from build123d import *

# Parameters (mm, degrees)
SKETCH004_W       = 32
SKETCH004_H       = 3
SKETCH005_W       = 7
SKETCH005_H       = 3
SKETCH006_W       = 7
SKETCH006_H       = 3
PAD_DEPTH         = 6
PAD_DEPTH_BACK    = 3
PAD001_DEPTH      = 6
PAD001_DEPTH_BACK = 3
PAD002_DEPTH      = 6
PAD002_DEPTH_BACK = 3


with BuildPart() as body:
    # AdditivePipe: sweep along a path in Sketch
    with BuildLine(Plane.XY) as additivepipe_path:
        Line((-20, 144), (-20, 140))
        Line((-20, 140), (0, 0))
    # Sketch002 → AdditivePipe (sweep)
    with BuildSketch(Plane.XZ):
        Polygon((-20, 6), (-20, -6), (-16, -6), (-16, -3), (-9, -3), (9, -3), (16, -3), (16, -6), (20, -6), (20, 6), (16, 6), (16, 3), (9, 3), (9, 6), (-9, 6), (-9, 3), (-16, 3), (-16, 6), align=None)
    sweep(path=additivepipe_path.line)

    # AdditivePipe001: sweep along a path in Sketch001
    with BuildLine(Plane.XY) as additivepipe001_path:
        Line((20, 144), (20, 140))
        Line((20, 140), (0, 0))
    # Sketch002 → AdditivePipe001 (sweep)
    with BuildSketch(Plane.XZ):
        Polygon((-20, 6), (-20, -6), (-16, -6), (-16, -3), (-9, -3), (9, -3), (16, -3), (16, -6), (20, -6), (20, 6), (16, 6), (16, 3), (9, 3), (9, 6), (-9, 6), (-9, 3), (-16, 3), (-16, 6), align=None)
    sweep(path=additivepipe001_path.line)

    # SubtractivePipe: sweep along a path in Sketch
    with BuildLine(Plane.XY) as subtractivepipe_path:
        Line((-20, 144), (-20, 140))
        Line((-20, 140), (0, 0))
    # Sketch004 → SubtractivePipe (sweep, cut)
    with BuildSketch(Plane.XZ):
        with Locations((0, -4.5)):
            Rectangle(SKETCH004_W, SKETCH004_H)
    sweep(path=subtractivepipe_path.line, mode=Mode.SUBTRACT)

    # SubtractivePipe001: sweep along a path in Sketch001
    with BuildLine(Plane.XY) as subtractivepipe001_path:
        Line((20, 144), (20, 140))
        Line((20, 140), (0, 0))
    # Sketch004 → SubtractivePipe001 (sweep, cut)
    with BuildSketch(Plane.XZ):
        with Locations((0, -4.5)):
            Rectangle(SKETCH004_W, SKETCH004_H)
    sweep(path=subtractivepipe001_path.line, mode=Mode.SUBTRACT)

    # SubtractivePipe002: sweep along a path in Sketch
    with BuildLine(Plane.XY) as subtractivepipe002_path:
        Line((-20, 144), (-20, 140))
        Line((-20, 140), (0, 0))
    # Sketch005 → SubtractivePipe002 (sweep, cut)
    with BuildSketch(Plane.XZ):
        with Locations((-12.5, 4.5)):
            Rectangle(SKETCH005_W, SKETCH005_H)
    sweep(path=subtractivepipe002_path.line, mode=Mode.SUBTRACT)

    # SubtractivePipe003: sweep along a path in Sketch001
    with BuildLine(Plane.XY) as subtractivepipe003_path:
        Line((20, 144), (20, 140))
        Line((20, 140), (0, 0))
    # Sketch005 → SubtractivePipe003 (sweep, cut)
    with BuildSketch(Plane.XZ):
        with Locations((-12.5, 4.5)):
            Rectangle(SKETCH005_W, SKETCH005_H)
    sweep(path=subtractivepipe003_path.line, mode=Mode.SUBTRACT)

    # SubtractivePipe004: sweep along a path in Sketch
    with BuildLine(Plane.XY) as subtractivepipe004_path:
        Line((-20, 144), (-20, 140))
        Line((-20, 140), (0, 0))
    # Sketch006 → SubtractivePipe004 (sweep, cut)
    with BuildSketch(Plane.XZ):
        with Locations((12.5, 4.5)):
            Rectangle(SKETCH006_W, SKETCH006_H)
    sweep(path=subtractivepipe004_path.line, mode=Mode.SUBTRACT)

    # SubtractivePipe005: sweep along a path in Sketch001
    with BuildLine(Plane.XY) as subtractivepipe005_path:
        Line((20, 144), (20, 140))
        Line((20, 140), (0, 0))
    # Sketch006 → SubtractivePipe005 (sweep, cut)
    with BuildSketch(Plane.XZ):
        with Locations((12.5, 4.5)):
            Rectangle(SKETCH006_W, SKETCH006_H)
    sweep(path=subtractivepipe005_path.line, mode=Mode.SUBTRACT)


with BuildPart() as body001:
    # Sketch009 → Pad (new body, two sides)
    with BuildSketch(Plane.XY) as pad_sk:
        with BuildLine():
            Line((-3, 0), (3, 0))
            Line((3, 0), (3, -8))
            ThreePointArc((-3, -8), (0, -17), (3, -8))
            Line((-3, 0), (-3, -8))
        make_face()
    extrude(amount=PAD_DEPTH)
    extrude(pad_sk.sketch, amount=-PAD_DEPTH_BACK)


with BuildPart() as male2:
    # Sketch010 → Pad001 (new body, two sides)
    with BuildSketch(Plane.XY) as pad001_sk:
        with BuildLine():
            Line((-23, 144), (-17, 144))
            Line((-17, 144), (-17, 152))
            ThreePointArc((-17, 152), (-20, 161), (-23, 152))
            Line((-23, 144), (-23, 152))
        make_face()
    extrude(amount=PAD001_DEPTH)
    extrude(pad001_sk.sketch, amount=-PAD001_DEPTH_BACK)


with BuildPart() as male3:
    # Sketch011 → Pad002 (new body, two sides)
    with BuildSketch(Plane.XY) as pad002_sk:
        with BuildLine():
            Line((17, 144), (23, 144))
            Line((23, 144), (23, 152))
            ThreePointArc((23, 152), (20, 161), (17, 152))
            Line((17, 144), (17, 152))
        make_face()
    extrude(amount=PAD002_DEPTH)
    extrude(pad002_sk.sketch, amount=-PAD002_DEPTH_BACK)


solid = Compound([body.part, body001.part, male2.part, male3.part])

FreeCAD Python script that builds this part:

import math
import FreeCAD as App
import Part
import Sketcher

doc = App.newDocument("Part")
body = doc.addObject("PartDesign::Body", "Body")

# Sketch on XZ plane
sketch1 = doc.addObject("Sketcher::SketchObject", "Sketch")
body.addObject(sketch1)
sketch1.AttachmentSupport = (doc.XZ_Plane, [""])
sketch1.MapMode = "FlatFace"
sketch1.addGeometry(Part.LineSegment(App.Vector(-20, 6, 0), App.Vector(-20, -6, 0)), False)
sketch1.addGeometry(Part.LineSegment(App.Vector(-20, -6, 0), App.Vector(-16, -6, 0)), False)
sketch1.addGeometry(Part.LineSegment(App.Vector(-16, -6, 0), App.Vector(-16, -3, 0)), False)
sketch1.addGeometry(Part.LineSegment(App.Vector(-16, -3, 0), App.Vector(16, -3, 0)), False)
sketch1.addGeometry(Part.LineSegment(App.Vector(16, -3, 0), App.Vector(16, -6, 0)), False)
sketch1.addGeometry(Part.LineSegment(App.Vector(16, -6, 0), App.Vector(20, -6, 0)), False)
sketch1.addGeometry(Part.LineSegment(App.Vector(20, -6, 0), App.Vector(20, 6, 0)), False)
sketch1.addGeometry(Part.LineSegment(App.Vector(20, 6, 0), App.Vector(16, 6, 0)), False)
sketch1.addGeometry(Part.LineSegment(App.Vector(16, 6, 0), App.Vector(16, 3, 0)), False)
sketch1.addGeometry(Part.LineSegment(App.Vector(16, 3, 0), App.Vector(9, 3, 0)), False)
sketch1.addGeometry(Part.LineSegment(App.Vector(9, 3, 0), App.Vector(9, 6, 0)), False)
sketch1.addGeometry(Part.LineSegment(App.Vector(9, 6, 0), App.Vector(-9, 6, 0)), False)
sketch1.addGeometry(Part.LineSegment(App.Vector(-9, 6, 0), App.Vector(-9, 3, 0)), False)
sketch1.addGeometry(Part.LineSegment(App.Vector(-9, 3, 0), App.Vector(-16, 3, 0)), False)
sketch1.addGeometry(Part.LineSegment(App.Vector(-16, 3, 0), App.Vector(-16, 6, 0)), False)
sketch1.addGeometry(Part.LineSegment(App.Vector(-16, 6, 0), App.Vector(-20, 6, 0)), False)
sketch1.addConstraint(Sketcher.Constraint("Coincident", 0, 2, 1, 1))
sketch1.addConstraint(Sketcher.Constraint("Coincident", 1, 2, 2, 1))
sketch1.addConstraint(Sketcher.Constraint("Coincident", 2, 2, 3, 1))
sketch1.addConstraint(Sketcher.Constraint("Coincident", 3, 2, 4, 1))
sketch1.addConstraint(Sketcher.Constraint("Coincident", 4, 2, 5, 1))
sketch1.addConstraint(Sketcher.Constraint("Coincident", 5, 2, 6, 1))
sketch1.addConstraint(Sketcher.Constraint("Coincident", 6, 2, 7, 1))
sketch1.addConstraint(Sketcher.Constraint("Coincident", 7, 2, 8, 1))
sketch1.addConstraint(Sketcher.Constraint("Coincident", 8, 2, 9, 1))
sketch1.addConstraint(Sketcher.Constraint("Coincident", 9, 2, 10, 1))
sketch1.addConstraint(Sketcher.Constraint("Coincident", 10, 2, 11, 1))
sketch1.addConstraint(Sketcher.Constraint("Coincident", 11, 2, 12, 1))
sketch1.addConstraint(Sketcher.Constraint("Coincident", 12, 2, 13, 1))
sketch1.addConstraint(Sketcher.Constraint("Coincident", 13, 2, 14, 1))
sketch1.addConstraint(Sketcher.Constraint("Coincident", 14, 2, 15, 1))
sketch1.addConstraint(Sketcher.Constraint("Coincident", 15, 2, 0, 1))
sketch1.addConstraint(Sketcher.Constraint("Vertical", 0))
sketch1.addConstraint(Sketcher.Constraint("Horizontal", 1))
sketch1.addConstraint(Sketcher.Constraint("Vertical", 2))
sketch1.addConstraint(Sketcher.Constraint("Horizontal", 3))
sketch1.addConstraint(Sketcher.Constraint("Vertical", 4))
sketch1.addConstraint(Sketcher.Constraint("Horizontal", 5))
sketch1.addConstraint(Sketcher.Constraint("Vertical", 6))
sketch1.addConstraint(Sketcher.Constraint("Horizontal", 7))
sketch1.addConstraint(Sketcher.Constraint("Vertical", 8))
sketch1.addConstraint(Sketcher.Constraint("Horizontal", 9))
sketch1.addConstraint(Sketcher.Constraint("Vertical", 10))
sketch1.addConstraint(Sketcher.Constraint("Horizontal", 11))
sketch1.addConstraint(Sketcher.Constraint("Vertical", 12))
sketch1.addConstraint(Sketcher.Constraint("Horizontal", 13))
sketch1.addConstraint(Sketcher.Constraint("Vertical", 14))
sketch1.addConstraint(Sketcher.Constraint("Horizontal", 15))
sketch1.addConstraint(Sketcher.Constraint("Symmetric", 0, 2, 6, 2, -1, 1))
sketch1.addConstraint(Sketcher.Constraint("Symmetric", 2, 2, 8, 2, -1, 1))
sketch1.addConstraint(Sketcher.Constraint("Symmetric", 3, 2, 13, 2, -1, 1))
sketch1.addConstraint(Sketcher.Constraint("Symmetric", 1, 2, 4, 2, -2))
sketch1.addConstraint(Sketcher.Constraint("Horizontal", 7, 2, 10, 2))
sketch1.addConstraint(Sketcher.Constraint("Horizontal", 11, 2, 14, 2))
sketch1.addConstraint(Sketcher.Constraint("Equal", 9, 13))
sketch1.addConstraint(Sketcher.Constraint("DistanceX", 1, 1, 1, 2, 4.0))
sketch1.addConstraint(Sketcher.Constraint("DistanceX", 3, 1, 3, 2, 32.0))
sketch1.addConstraint(Sketcher.Constraint("DistanceX", 9, 2, 9, 1, 7.0))
sketch1.addConstraint(Sketcher.Constraint("DistanceY", 0, 2, 0, 1, 12.0))
sketch1.addConstraint(Sketcher.Constraint("DistanceY", 2, 1, 2, 2, 3.0))

# Sketch on XY plane
sketch2 = doc.addObject("Sketcher::SketchObject", "Sketch001")
body.addObject(sketch2)
sketch2.AttachmentSupport = (doc.XY_Plane, [""])
sketch2.MapMode = "FlatFace"
sketch2.addGeometry(Part.LineSegment(App.Vector(-20, 144, 0), App.Vector(-20, 140, 0)), False)
sketch2.addGeometry(Part.LineSegment(App.Vector(-20, 140, 0), App.Vector(0, 0, 0)), False)
sketch2.addConstraint(Sketcher.Constraint("Coincident", 0, 2, 1, 1))
sketch2.addConstraint(Sketcher.Constraint("Vertical", 0))
sketch2.addConstraint(Sketcher.Constraint("Coincident", 1, 2, -1, 1))
sketch2.addConstraint(Sketcher.Constraint("DistanceY", 0, 2, 0, 1, 4.0))
sketch2.addConstraint(Sketcher.Constraint("DistanceX", 0, 1, -1, 1, 20.0))
sketch2.addConstraint(Sketcher.Constraint("DistanceY", -1, 1, 0, 1, 144.0))
doc.recompute()

additivepipe = doc.addObject("PartDesign::AdditivePipe", "AdditivePipe")
body.addObject(additivepipe)
additivepipe.Profile = sketch1
additivepipe.Spine = (sketch2, ["Edge1", "Edge2"])

# Sketch on XZ plane
sketch3 = doc.addObject("Sketcher::SketchObject", "Sketch002")
body.addObject(sketch3)
sketch3.AttachmentSupport = (doc.XZ_Plane, [""])
sketch3.MapMode = "FlatFace"
sketch3.addGeometry(Part.LineSegment(App.Vector(-20, 6, 0), App.Vector(-20, -6, 0)), False)
sketch3.addGeometry(Part.LineSegment(App.Vector(-20, -6, 0), App.Vector(-16, -6, 0)), False)
sketch3.addGeometry(Part.LineSegment(App.Vector(-16, -6, 0), App.Vector(-16, -3, 0)), False)
sketch3.addGeometry(Part.LineSegment(App.Vector(-16, -3, 0), App.Vector(16, -3, 0)), False)
sketch3.addGeometry(Part.LineSegment(App.Vector(16, -3, 0), App.Vector(16, -6, 0)), False)
sketch3.addGeometry(Part.LineSegment(App.Vector(16, -6, 0), App.Vector(20, -6, 0)), False)
sketch3.addGeometry(Part.LineSegment(App.Vector(20, -6, 0), App.Vector(20, 6, 0)), False)
sketch3.addGeometry(Part.LineSegment(App.Vector(20, 6, 0), App.Vector(16, 6, 0)), False)
sketch3.addGeometry(Part.LineSegment(App.Vector(16, 6, 0), App.Vector(16, 3, 0)), False)
sketch3.addGeometry(Part.LineSegment(App.Vector(16, 3, 0), App.Vector(9, 3, 0)), False)
sketch3.addGeometry(Part.LineSegment(App.Vector(9, 3, 0), App.Vector(9, 6, 0)), False)
sketch3.addGeometry(Part.LineSegment(App.Vector(9, 6, 0), App.Vector(-9, 6, 0)), False)
sketch3.addGeometry(Part.LineSegment(App.Vector(-9, 6, 0), App.Vector(-9, 3, 0)), False)
sketch3.addGeometry(Part.LineSegment(App.Vector(-9, 3, 0), App.Vector(-16, 3, 0)), False)
sketch3.addGeometry(Part.LineSegment(App.Vector(-16, 3, 0), App.Vector(-16, 6, 0)), False)
sketch3.addGeometry(Part.LineSegment(App.Vector(-16, 6, 0), App.Vector(-20, 6, 0)), False)
sketch3.addConstraint(Sketcher.Constraint("Coincident", 0, 2, 1, 1))
sketch3.addConstraint(Sketcher.Constraint("Coincident", 1, 2, 2, 1))
sketch3.addConstraint(Sketcher.Constraint("Coincident", 2, 2, 3, 1))
sketch3.addConstraint(Sketcher.Constraint("Coincident", 3, 2, 4, 1))
sketch3.addConstraint(Sketcher.Constraint("Coincident", 4, 2, 5, 1))
sketch3.addConstraint(Sketcher.Constraint("Coincident", 5, 2, 6, 1))
sketch3.addConstraint(Sketcher.Constraint("Coincident", 6, 2, 7, 1))
sketch3.addConstraint(Sketcher.Constraint("Coincident", 7, 2, 8, 1))
sketch3.addConstraint(Sketcher.Constraint("Coincident", 8, 2, 9, 1))
sketch3.addConstraint(Sketcher.Constraint("Coincident", 9, 2, 10, 1))
sketch3.addConstraint(Sketcher.Constraint("Coincident", 10, 2, 11, 1))
sketch3.addConstraint(Sketcher.Constraint("Coincident", 11, 2, 12, 1))
sketch3.addConstraint(Sketcher.Constraint("Coincident", 12, 2, 13, 1))
sketch3.addConstraint(Sketcher.Constraint("Coincident", 13, 2, 14, 1))
sketch3.addConstraint(Sketcher.Constraint("Coincident", 14, 2, 15, 1))
sketch3.addConstraint(Sketcher.Constraint("Coincident", 15, 2, 0, 1))
sketch3.addConstraint(Sketcher.Constraint("Vertical", 0))
sketch3.addConstraint(Sketcher.Constraint("Horizontal", 1))
sketch3.addConstraint(Sketcher.Constraint("Vertical", 2))
sketch3.addConstraint(Sketcher.Constraint("Horizontal", 3))
sketch3.addConstraint(Sketcher.Constraint("Vertical", 4))
sketch3.addConstraint(Sketcher.Constraint("Horizontal", 5))
sketch3.addConstraint(Sketcher.Constraint("Vertical", 6))
sketch3.addConstraint(Sketcher.Constraint("Horizontal", 7))
sketch3.addConstraint(Sketcher.Constraint("Vertical", 8))
sketch3.addConstraint(Sketcher.Constraint("Horizontal", 9))
sketch3.addConstraint(Sketcher.Constraint("Vertical", 10))
sketch3.addConstraint(Sketcher.Constraint("Horizontal", 11))
sketch3.addConstraint(Sketcher.Constraint("Vertical", 12))
sketch3.addConstraint(Sketcher.Constraint("Horizontal", 13))
sketch3.addConstraint(Sketcher.Constraint("Vertical", 14))
sketch3.addConstraint(Sketcher.Constraint("Horizontal", 15))
sketch3.addConstraint(Sketcher.Constraint("Symmetric", 0, 2, 6, 2, -1, 1))
sketch3.addConstraint(Sketcher.Constraint("Symmetric", 2, 2, 8, 2, -1, 1))
sketch3.addConstraint(Sketcher.Constraint("Symmetric", 3, 2, 13, 2, -1, 1))
sketch3.addConstraint(Sketcher.Constraint("Symmetric", 1, 2, 4, 2, -2))
sketch3.addConstraint(Sketcher.Constraint("Horizontal", 7, 2, 10, 2))
sketch3.addConstraint(Sketcher.Constraint("Horizontal", 11, 2, 14, 2))
sketch3.addConstraint(Sketcher.Constraint("Equal", 9, 13))
sketch3.addConstraint(Sketcher.Constraint("DistanceX", 1, 1, 1, 2, 4.0))
sketch3.addConstraint(Sketcher.Constraint("DistanceX", 3, 1, 3, 2, 32.0))
sketch3.addConstraint(Sketcher.Constraint("DistanceX", 9, 2, 9, 1, 7.0))
sketch3.addConstraint(Sketcher.Constraint("DistanceY", 0, 2, 0, 1, 12.0))
sketch3.addConstraint(Sketcher.Constraint("DistanceY", 2, 1, 2, 2, 3.0))

# Sketch on XY plane
sketch4 = doc.addObject("Sketcher::SketchObject", "Sketch003")
body.addObject(sketch4)
sketch4.AttachmentSupport = (doc.XY_Plane, [""])
sketch4.MapMode = "FlatFace"
sketch4.addGeometry(Part.LineSegment(App.Vector(20, 144, 0), App.Vector(20, 140, 0)), False)
sketch4.addGeometry(Part.LineSegment(App.Vector(20, 140, 0), App.Vector(0, 0, 0)), False)
sketch4.addConstraint(Sketcher.Constraint("Coincident", 0, 2, 1, 1))
sketch4.addConstraint(Sketcher.Constraint("Vertical", 0))
sketch4.addConstraint(Sketcher.Constraint("Coincident", 1, 2, -1, 1))
sketch4.addConstraint(Sketcher.Constraint("DistanceY", 0, 2, 0, 1, 4.0))
sketch4.addConstraint(Sketcher.Constraint("DistanceX", -1, 1, 0, 1, 20.0))
sketch4.addConstraint(Sketcher.Constraint("DistanceY", -1, 1, 0, 1, 144.0))
doc.recompute()

additivepipe2 = doc.addObject("PartDesign::AdditivePipe", "AdditivePipe001")
body.addObject(additivepipe2)
additivepipe2.Profile = sketch3
additivepipe2.Spine = (sketch4, ["Edge1", "Edge2"])

# Sketch on XZ plane
sketch5 = doc.addObject("Sketcher::SketchObject", "Sketch004")
body.addObject(sketch5)
sketch5.AttachmentSupport = (doc.XZ_Plane, [""])
sketch5.MapMode = "FlatFace"
sketch5.addGeometry(Part.LineSegment(App.Vector(-16, -3, 0), App.Vector(-16, -6, 0)), False)
sketch5.addGeometry(Part.LineSegment(App.Vector(-16, -6, 0), App.Vector(16, -6, 0)), False)
sketch5.addGeometry(Part.LineSegment(App.Vector(16, -6, 0), App.Vector(16, -3, 0)), False)
sketch5.addGeometry(Part.LineSegment(App.Vector(16, -3, 0), App.Vector(-16, -3, 0)), False)
sketch5.addConstraint(Sketcher.Constraint("Coincident", 0, 2, 1, 1))
sketch5.addConstraint(Sketcher.Constraint("Coincident", 1, 2, 2, 1))
sketch5.addConstraint(Sketcher.Constraint("Coincident", 2, 2, 3, 1))
sketch5.addConstraint(Sketcher.Constraint("Coincident", 3, 2, 0, 1))
sketch5.addConstraint(Sketcher.Constraint("Vertical", 0))
sketch5.addConstraint(Sketcher.Constraint("Horizontal", 1))
sketch5.addConstraint(Sketcher.Constraint("Vertical", 2))
sketch5.addConstraint(Sketcher.Constraint("Horizontal", 3))
sketch5.addConstraint(Sketcher.Constraint("DistanceX", 1, 1, 1, 2, 32.0))
sketch5.addConstraint(Sketcher.Constraint("DistanceY", 0, 2, 0, 1, 3.0))
sketch5.addConstraint(Sketcher.Constraint("DistanceX", 0, 2, -1, 1, 16.0))
sketch5.addConstraint(Sketcher.Constraint("DistanceY", 0, 2, -1, 1, 6.0))

# Sketch on XY plane
sketch6 = doc.addObject("Sketcher::SketchObject", "Sketch005")
body.addObject(sketch6)
sketch6.AttachmentSupport = (doc.XY_Plane, [""])
sketch6.MapMode = "FlatFace"
sketch6.addGeometry(Part.LineSegment(App.Vector(-20, 144, 0), App.Vector(-20, 140, 0)), False)
sketch6.addGeometry(Part.LineSegment(App.Vector(-20, 140, 0), App.Vector(0, 0, 0)), False)
sketch6.addConstraint(Sketcher.Constraint("Coincident", 0, 2, 1, 1))
sketch6.addConstraint(Sketcher.Constraint("Vertical", 0))
sketch6.addConstraint(Sketcher.Constraint("Coincident", 1, 2, -1, 1))
sketch6.addConstraint(Sketcher.Constraint("DistanceY", 0, 2, 0, 1, 4.0))
sketch6.addConstraint(Sketcher.Constraint("DistanceX", 0, 1, -1, 1, 20.0))
sketch6.addConstraint(Sketcher.Constraint("DistanceY", -1, 1, 0, 1, 144.0))
doc.recompute()

subtractivepipe = doc.addObject("PartDesign::SubtractivePipe", "SubtractivePipe")
body.addObject(subtractivepipe)
subtractivepipe.Profile = sketch5
subtractivepipe.Spine = (sketch6, ["Edge1", "Edge2"])

# Sketch on XZ plane
sketch7 = doc.addObject("Sketcher::SketchObject", "Sketch006")
body.addObject(sketch7)
sketch7.AttachmentSupport = (doc.XZ_Plane, [""])
sketch7.MapMode = "FlatFace"
sketch7.addGeometry(Part.LineSegment(App.Vector(-16, -3, 0), App.Vector(-16, -6, 0)), False)
sketch7.addGeometry(Part.LineSegment(App.Vector(-16, -6, 0), App.Vector(16, -6, 0)), False)
sketch7.addGeometry(Part.LineSegment(App.Vector(16, -6, 0), App.Vector(16, -3, 0)), False)
sketch7.addGeometry(Part.LineSegment(App.Vector(16, -3, 0), App.Vector(-16, -3, 0)), False)
sketch7.addConstraint(Sketcher.Constraint("Coincident", 0, 2, 1, 1))
sketch7.addConstraint(Sketcher.Constraint("Coincident", 1, 2, 2, 1))
sketch7.addConstraint(Sketcher.Constraint("Coincident", 2, 2, 3, 1))
sketch7.addConstraint(Sketcher.Constraint("Coincident", 3, 2, 0, 1))
sketch7.addConstraint(Sketcher.Constraint("Vertical", 0))
sketch7.addConstraint(Sketcher.Constraint("Horizontal", 1))
sketch7.addConstraint(Sketcher.Constraint("Vertical", 2))
sketch7.addConstraint(Sketcher.Constraint("Horizontal", 3))
sketch7.addConstraint(Sketcher.Constraint("DistanceX", 1, 1, 1, 2, 32.0))
sketch7.addConstraint(Sketcher.Constraint("DistanceY", 0, 2, 0, 1, 3.0))
sketch7.addConstraint(Sketcher.Constraint("DistanceX", 0, 2, -1, 1, 16.0))
sketch7.addConstraint(Sketcher.Constraint("DistanceY", 0, 2, -1, 1, 6.0))

# Sketch on XY plane
sketch8 = doc.addObject("Sketcher::SketchObject", "Sketch007")
body.addObject(sketch8)
sketch8.AttachmentSupport = (doc.XY_Plane, [""])
sketch8.MapMode = "FlatFace"
sketch8.addGeometry(Part.LineSegment(App.Vector(20, 144, 0), App.Vector(20, 140, 0)), False)
sketch8.addGeometry(Part.LineSegment(App.Vector(20, 140, 0), App.Vector(0, 0, 0)), False)
sketch8.addConstraint(Sketcher.Constraint("Coincident", 0, 2, 1, 1))
sketch8.addConstraint(Sketcher.Constraint("Vertical", 0))
sketch8.addConstraint(Sketcher.Constraint("Coincident", 1, 2, -1, 1))
sketch8.addConstraint(Sketcher.Constraint("DistanceY", 0, 2, 0, 1, 4.0))
sketch8.addConstraint(Sketcher.Constraint("DistanceX", -1, 1, 0, 1, 20.0))
sketch8.addConstraint(Sketcher.Constraint("DistanceY", -1, 1, 0, 1, 144.0))
doc.recompute()

subtractivepipe2 = doc.addObject("PartDesign::SubtractivePipe", "SubtractivePipe001")
body.addObject(subtractivepipe2)
subtractivepipe2.Profile = sketch7
subtractivepipe2.Spine = (sketch8, ["Edge1", "Edge2"])

# Sketch on XZ plane
sketch9 = doc.addObject("Sketcher::SketchObject", "Sketch008")
body.addObject(sketch9)
sketch9.AttachmentSupport = (doc.XZ_Plane, [""])
sketch9.MapMode = "FlatFace"
sketch9.addGeometry(Part.LineSegment(App.Vector(-16, 6, 0), App.Vector(-16, 3, 0)), False)
sketch9.addGeometry(Part.LineSegment(App.Vector(-16, 3, 0), App.Vector(-9, 3, 0)), False)
sketch9.addGeometry(Part.LineSegment(App.Vector(-9, 3, 0), App.Vector(-9, 6, 0)), False)
sketch9.addGeometry(Part.LineSegment(App.Vector(-9, 6, 0), App.Vector(-16, 6, 0)), False)
sketch9.addConstraint(Sketcher.Constraint("Coincident", 0, 2, 1, 1))
sketch9.addConstraint(Sketcher.Constraint("Coincident", 1, 2, 2, 1))
sketch9.addConstraint(Sketcher.Constraint("Coincident", 2, 2, 3, 1))
sketch9.addConstraint(Sketcher.Constraint("Coincident", 3, 2, 0, 1))
sketch9.addConstraint(Sketcher.Constraint("Vertical", 0))
sketch9.addConstraint(Sketcher.Constraint("Horizontal", 1))
sketch9.addConstraint(Sketcher.Constraint("Vertical", 2))
sketch9.addConstraint(Sketcher.Constraint("Horizontal", 3))
sketch9.addConstraint(Sketcher.Constraint("DistanceX", 1, 1, 1, 2, 7.0))
sketch9.addConstraint(Sketcher.Constraint("DistanceY", 0, 2, 0, 1, 3.0))
sketch9.addConstraint(Sketcher.Constraint("DistanceX", 0, 2, -1, 1, 16.0))
sketch9.addConstraint(Sketcher.Constraint("DistanceY", -1, 1, 0, 2, 3.0))

# Sketch on XY plane
sketch10 = doc.addObject("Sketcher::SketchObject", "Sketch009")
body.addObject(sketch10)
sketch10.AttachmentSupport = (doc.XY_Plane, [""])
sketch10.MapMode = "FlatFace"
sketch10.addGeometry(Part.LineSegment(App.Vector(-20, 144, 0), App.Vector(-20, 140, 0)), False)
sketch10.addGeometry(Part.LineSegment(App.Vector(-20, 140, 0), App.Vector(0, 0, 0)), False)
sketch10.addConstraint(Sketcher.Constraint("Coincident", 0, 2, 1, 1))
sketch10.addConstraint(Sketcher.Constraint("Vertical", 0))
sketch10.addConstraint(Sketcher.Constraint("Coincident", 1, 2, -1, 1))
sketch10.addConstraint(Sketcher.Constraint("DistanceY", 0, 2, 0, 1, 4.0))
sketch10.addConstraint(Sketcher.Constraint("DistanceX", 0, 1, -1, 1, 20.0))
sketch10.addConstraint(Sketcher.Constraint("DistanceY", -1, 1, 0, 1, 144.0))
doc.recompute()

subtractivepipe3 = doc.addObject("PartDesign::SubtractivePipe", "SubtractivePipe002")
body.addObject(subtractivepipe3)
subtractivepipe3.Profile = sketch9
subtractivepipe3.Spine = (sketch10, ["Edge1", "Edge2"])

# Sketch on XZ plane
sketch11 = doc.addObject("Sketcher::SketchObject", "Sketch010")
body.addObject(sketch11)
sketch11.AttachmentSupport = (doc.XZ_Plane, [""])
sketch11.MapMode = "FlatFace"
sketch11.addGeometry(Part.LineSegment(App.Vector(-16, 6, 0), App.Vector(-16, 3, 0)), False)
sketch11.addGeometry(Part.LineSegment(App.Vector(-16, 3, 0), App.Vector(-9, 3, 0)), False)
sketch11.addGeometry(Part.LineSegment(App.Vector(-9, 3, 0), App.Vector(-9, 6, 0)), False)
sketch11.addGeometry(Part.LineSegment(App.Vector(-9, 6, 0), App.Vector(-16, 6, 0)), False)
sketch11.addConstraint(Sketcher.Constraint("Coincident", 0, 2, 1, 1))
sketch11.addConstraint(Sketcher.Constraint("Coincident", 1, 2, 2, 1))
sketch11.addConstraint(Sketcher.Constraint("Coincident", 2, 2, 3, 1))
sketch11.addConstraint(Sketcher.Constraint("Coincident", 3, 2, 0, 1))
sketch11.addConstraint(Sketcher.Constraint("Vertical", 0))
sketch11.addConstraint(Sketcher.Constraint("Horizontal", 1))
sketch11.addConstraint(Sketcher.Constraint("Vertical", 2))
sketch11.addConstraint(Sketcher.Constraint("Horizontal", 3))
sketch11.addConstraint(Sketcher.Constraint("DistanceX", 1, 1, 1, 2, 7.0))
sketch11.addConstraint(Sketcher.Constraint("DistanceY", 0, 2, 0, 1, 3.0))
sketch11.addConstraint(Sketcher.Constraint("DistanceX", 0, 2, -1, 1, 16.0))
sketch11.addConstraint(Sketcher.Constraint("DistanceY", -1, 1, 0, 2, 3.0))

# Sketch on XY plane
sketch12 = doc.addObject("Sketcher::SketchObject", "Sketch011")
body.addObject(sketch12)
sketch12.AttachmentSupport = (doc.XY_Plane, [""])
sketch12.MapMode = "FlatFace"
sketch12.addGeometry(Part.LineSegment(App.Vector(20, 144, 0), App.Vector(20, 140, 0)), False)
sketch12.addGeometry(Part.LineSegment(App.Vector(20, 140, 0), App.Vector(0, 0, 0)), False)
sketch12.addConstraint(Sketcher.Constraint("Coincident", 0, 2, 1, 1))
sketch12.addConstraint(Sketcher.Constraint("Vertical", 0))
sketch12.addConstraint(Sketcher.Constraint("Coincident", 1, 2, -1, 1))
sketch12.addConstraint(Sketcher.Constraint("DistanceY", 0, 2, 0, 1, 4.0))
sketch12.addConstraint(Sketcher.Constraint("DistanceX", -1, 1, 0, 1, 20.0))
sketch12.addConstraint(Sketcher.Constraint("DistanceY", -1, 1, 0, 1, 144.0))
doc.recompute()

subtractivepipe4 = doc.addObject("PartDesign::SubtractivePipe", "SubtractivePipe003")
body.addObject(subtractivepipe4)
subtractivepipe4.Profile = sketch11
subtractivepipe4.Spine = (sketch12, ["Edge1", "Edge2"])

# Sketch on XZ plane
sketch13 = doc.addObject("Sketcher::SketchObject", "Sketch012")
body.addObject(sketch13)
sketch13.AttachmentSupport = (doc.XZ_Plane, [""])
sketch13.MapMode = "FlatFace"
sketch13.addGeometry(Part.LineSegment(App.Vector(9, 6, 0), App.Vector(9, 3, 0)), False)
sketch13.addGeometry(Part.LineSegment(App.Vector(9, 3, 0), App.Vector(16, 3, 0)), False)
sketch13.addGeometry(Part.LineSegment(App.Vector(16, 3, 0), App.Vector(16, 6, 0)), False)
sketch13.addGeometry(Part.LineSegment(App.Vector(16, 6, 0), App.Vector(9, 6, 0)), False)
sketch13.addConstraint(Sketcher.Constraint("Coincident", 0, 2, 1, 1))
sketch13.addConstraint(Sketcher.Constraint("Coincident", 1, 2, 2, 1))
sketch13.addConstraint(Sketcher.Constraint("Coincident", 2, 2, 3, 1))
sketch13.addConstraint(Sketcher.Constraint("Coincident", 3, 2, 0, 1))
sketch13.addConstraint(Sketcher.Constraint("Vertical", 0))
sketch13.addConstraint(Sketcher.Constraint("Horizontal", 1))
sketch13.addConstraint(Sketcher.Constraint("Vertical", 2))
sketch13.addConstraint(Sketcher.Constraint("Horizontal", 3))
sketch13.addConstraint(Sketcher.Constraint("DistanceX", 1, 1, 1, 2, 7.0))
sketch13.addConstraint(Sketcher.Constraint("DistanceY", 0, 2, 0, 1, 3.0))
sketch13.addConstraint(Sketcher.Constraint("DistanceX", -1, 1, 0, 2, 9.0))
sketch13.addConstraint(Sketcher.Constraint("DistanceY", -1, 1, 0, 2, 3.0))

# Sketch on XY plane
sketch14 = doc.addObject("Sketcher::SketchObject", "Sketch013")
body.addObject(sketch14)
sketch14.AttachmentSupport = (doc.XY_Plane, [""])
sketch14.MapMode = "FlatFace"
sketch14.addGeometry(Part.LineSegment(App.Vector(-20, 144, 0), App.Vector(-20, 140, 0)), False)
sketch14.addGeometry(Part.LineSegment(App.Vector(-20, 140, 0), App.Vector(0, 0, 0)), False)
sketch14.addConstraint(Sketcher.Constraint("Coincident", 0, 2, 1, 1))
sketch14.addConstraint(Sketcher.Constraint("Vertical", 0))
sketch14.addConstraint(Sketcher.Constraint("Coincident", 1, 2, -1, 1))
sketch14.addConstraint(Sketcher.Constraint("DistanceY", 0, 2, 0, 1, 4.0))
sketch14.addConstraint(Sketcher.Constraint("DistanceX", 0, 1, -1, 1, 20.0))
sketch14.addConstraint(Sketcher.Constraint("DistanceY", -1, 1, 0, 1, 144.0))
doc.recompute()

subtractivepipe5 = doc.addObject("PartDesign::SubtractivePipe", "SubtractivePipe004")
body.addObject(subtractivepipe5)
subtractivepipe5.Profile = sketch13
subtractivepipe5.Spine = (sketch14, ["Edge1", "Edge2"])

# Sketch on XZ plane
sketch15 = doc.addObject("Sketcher::SketchObject", "Sketch014")
body.addObject(sketch15)
sketch15.AttachmentSupport = (doc.XZ_Plane, [""])
sketch15.MapMode = "FlatFace"
sketch15.addGeometry(Part.LineSegment(App.Vector(9, 6, 0), App.Vector(9, 3, 0)), False)
sketch15.addGeometry(Part.LineSegment(App.Vector(9, 3, 0), App.Vector(16, 3, 0)), False)
sketch15.addGeometry(Part.LineSegment(App.Vector(16, 3, 0), App.Vector(16, 6, 0)), False)
sketch15.addGeometry(Part.LineSegment(App.Vector(16, 6, 0), App.Vector(9, 6, 0)), False)
sketch15.addConstraint(Sketcher.Constraint("Coincident", 0, 2, 1, 1))
sketch15.addConstraint(Sketcher.Constraint("Coincident", 1, 2, 2, 1))
sketch15.addConstraint(Sketcher.Constraint("Coincident", 2, 2, 3, 1))
sketch15.addConstraint(Sketcher.Constraint("Coincident", 3, 2, 0, 1))
sketch15.addConstraint(Sketcher.Constraint("Vertical", 0))
sketch15.addConstraint(Sketcher.Constraint("Horizontal", 1))
sketch15.addConstraint(Sketcher.Constraint("Vertical", 2))
sketch15.addConstraint(Sketcher.Constraint("Horizontal", 3))
sketch15.addConstraint(Sketcher.Constraint("DistanceX", 1, 1, 1, 2, 7.0))
sketch15.addConstraint(Sketcher.Constraint("DistanceY", 0, 2, 0, 1, 3.0))
sketch15.addConstraint(Sketcher.Constraint("DistanceX", -1, 1, 0, 2, 9.0))
sketch15.addConstraint(Sketcher.Constraint("DistanceY", -1, 1, 0, 2, 3.0))

# Sketch on XY plane
sketch16 = doc.addObject("Sketcher::SketchObject", "Sketch015")
body.addObject(sketch16)
sketch16.AttachmentSupport = (doc.XY_Plane, [""])
sketch16.MapMode = "FlatFace"
sketch16.addGeometry(Part.LineSegment(App.Vector(20, 144, 0), App.Vector(20, 140, 0)), False)
sketch16.addGeometry(Part.LineSegment(App.Vector(20, 140, 0), App.Vector(0, 0, 0)), False)
sketch16.addConstraint(Sketcher.Constraint("Coincident", 0, 2, 1, 1))
sketch16.addConstraint(Sketcher.Constraint("Vertical", 0))
sketch16.addConstraint(Sketcher.Constraint("Coincident", 1, 2, -1, 1))
sketch16.addConstraint(Sketcher.Constraint("DistanceY", 0, 2, 0, 1, 4.0))
sketch16.addConstraint(Sketcher.Constraint("DistanceX", -1, 1, 0, 1, 20.0))
sketch16.addConstraint(Sketcher.Constraint("DistanceY", -1, 1, 0, 1, 144.0))
doc.recompute()

subtractivepipe6 = doc.addObject("PartDesign::SubtractivePipe", "SubtractivePipe005")
body.addObject(subtractivepipe6)
subtractivepipe6.Profile = sketch15
subtractivepipe6.Spine = (sketch16, ["Edge1", "Edge2"])
body2 = doc.addObject("PartDesign::Body", "Body001")

# Sketch on XY plane
sketch17 = doc.addObject("Sketcher::SketchObject", "Sketch016")
body2.addObject(sketch17)
sketch17.AttachmentSupport = (doc.getObject("XY_Plane001"), [""])
sketch17.MapMode = "FlatFace"
sketch17.addGeometry(Part.LineSegment(App.Vector(3, 0, 0), App.Vector(-3, 0, 0)), False)
sketch17.addGeometry(Part.LineSegment(App.Vector(-3, 0, 0), App.Vector(-3, -8, 0)), False)
sketch17.addGeometry(Part.ArcOfCircle(Part.Circle(App.Vector(0, -12, 0), App.Vector(0, 0, 1), 5), math.radians(127), math.radians(413)), False)
sketch17.addGeometry(Part.LineSegment(App.Vector(3, -8, 0), App.Vector(3, 0, 0)), False)
sketch17.addConstraint(Sketcher.Constraint("Coincident", 0, 2, 1, 1))
sketch17.addConstraint(Sketcher.Constraint("Coincident", 1, 2, 2, 1))
sketch17.addConstraint(Sketcher.Constraint("Coincident", 2, 2, 3, 1))
sketch17.addConstraint(Sketcher.Constraint("Coincident", 3, 2, 0, 1))
sketch17.addConstraint(Sketcher.Constraint("Horizontal", 0))
sketch17.addConstraint(Sketcher.Constraint("Vertical", 1))
sketch17.addConstraint(Sketcher.Constraint("Vertical", 3))
sketch17.addConstraint(Sketcher.Constraint("Symmetric", 0, 2, 3, 2, -1, 1))
sketch17.addConstraint(Sketcher.Constraint("PointOnObject", 2, 3, -2))
sketch17.addConstraint(Sketcher.Constraint("Radius", 2, 5.0))
sketch17.addConstraint(Sketcher.Constraint("DistanceX", 0, 2, 0, 1, 6.0))
sketch17.addConstraint(Sketcher.Constraint("DistanceY", 1, 2, 1, 1, 8.0))
pad1 = doc.addObject("PartDesign::Pad", "Pad")
body2.addObject(pad1)
pad1.Profile = sketch17
pad1.Type = "TwoLengths"
pad1.Length = 6
pad1.Length2 = 3
body3 = doc.addObject("PartDesign::Body", "Body002")

# Sketch on XY plane
sketch18 = doc.addObject("Sketcher::SketchObject", "Sketch017")
body3.addObject(sketch18)
sketch18.AttachmentSupport = (doc.getObject("XY_Plane002"), [""])
sketch18.MapMode = "FlatFace"
sketch18.addGeometry(Part.LineSegment(App.Vector(-23, 144, 0), App.Vector(-17, 144, 0)), False)
sketch18.addGeometry(Part.LineSegment(App.Vector(-17, 144, 0), App.Vector(-17, 152, 0)), False)
sketch18.addGeometry(Part.ArcOfCircle(Part.Circle(App.Vector(-20, 156, 0), App.Vector(0, 0, 1), 5), math.radians(-53), math.radians(233)), False)
sketch18.addGeometry(Part.LineSegment(App.Vector(-23, 152, 0), App.Vector(-23, 144, 0)), False)
sketch18.addConstraint(Sketcher.Constraint("Coincident", 0, 2, 1, 1))
sketch18.addConstraint(Sketcher.Constraint("Coincident", 1, 2, 2, 1))
sketch18.addConstraint(Sketcher.Constraint("Coincident", 2, 2, 3, 1))
sketch18.addConstraint(Sketcher.Constraint("Coincident", 3, 2, 0, 1))
sketch18.addConstraint(Sketcher.Constraint("Horizontal", 0))
sketch18.addConstraint(Sketcher.Constraint("Vertical", 1))
sketch18.addConstraint(Sketcher.Constraint("Vertical", 3))
sketch18.addConstraint(Sketcher.Constraint("Horizontal", 1, 2, 2, 2))
sketch18.addConstraint(Sketcher.Constraint("Radius", 2, 5.0))
sketch18.addConstraint(Sketcher.Constraint("DistanceX", 0, 1, 0, 2, 6.0))
sketch18.addConstraint(Sketcher.Constraint("DistanceY", 1, 1, 1, 2, 8.0))
sketch18.addConstraint(Sketcher.Constraint("DistanceX", 2, 3, -1, 1, 20.0))
sketch18.addConstraint(Sketcher.Constraint("DistanceY", -1, 1, 2, 3, 156.0))
pad2 = doc.addObject("PartDesign::Pad", "Pad001")
body3.addObject(pad2)
pad2.Profile = sketch18
pad2.Type = "TwoLengths"
pad2.Length = 6
pad2.Length2 = 3
body4 = doc.addObject("PartDesign::Body", "Body003")

# Sketch on XY plane
sketch19 = doc.addObject("Sketcher::SketchObject", "Sketch018")
body4.addObject(sketch19)
sketch19.AttachmentSupport = (doc.getObject("XY_Plane003"), [""])
sketch19.MapMode = "FlatFace"
sketch19.addGeometry(Part.LineSegment(App.Vector(17, 144, 0), App.Vector(23, 144, 0)), False)
sketch19.addGeometry(Part.LineSegment(App.Vector(23, 144, 0), App.Vector(23, 152, 0)), False)
sketch19.addGeometry(Part.ArcOfCircle(Part.Circle(App.Vector(20, 156, 0), App.Vector(0, 0, 1), 5), math.radians(-53), math.radians(233)), False)
sketch19.addGeometry(Part.LineSegment(App.Vector(17, 152, 0), App.Vector(17, 144, 0)), False)
sketch19.addConstraint(Sketcher.Constraint("Coincident", 0, 2, 1, 1))
sketch19.addConstraint(Sketcher.Constraint("Coincident", 1, 2, 2, 1))
sketch19.addConstraint(Sketcher.Constraint("Coincident", 2, 2, 3, 1))
sketch19.addConstraint(Sketcher.Constraint("Coincident", 3, 2, 0, 1))
sketch19.addConstraint(Sketcher.Constraint("Horizontal", 0))
sketch19.addConstraint(Sketcher.Constraint("Vertical", 1))
sketch19.addConstraint(Sketcher.Constraint("Vertical", 3))
sketch19.addConstraint(Sketcher.Constraint("Horizontal", 1, 2, 2, 2))
sketch19.addConstraint(Sketcher.Constraint("Radius", 2, 5.0))
sketch19.addConstraint(Sketcher.Constraint("DistanceX", 0, 1, 0, 2, 6.0))
sketch19.addConstraint(Sketcher.Constraint("DistanceY", 1, 1, 1, 2, 8.0))
sketch19.addConstraint(Sketcher.Constraint("DistanceX", -1, 1, 2, 3, 20.0))
sketch19.addConstraint(Sketcher.Constraint("DistanceY", -1, 1, 2, 3, 156.0))
pad3 = doc.addObject("PartDesign::Pad", "Pad002")
body4.addObject(pad3)
pad3.Profile = sketch19
pad3.Type = "TwoLengths"
pad3.Length = 6
pad3.Length2 = 3

doc.recompute()
